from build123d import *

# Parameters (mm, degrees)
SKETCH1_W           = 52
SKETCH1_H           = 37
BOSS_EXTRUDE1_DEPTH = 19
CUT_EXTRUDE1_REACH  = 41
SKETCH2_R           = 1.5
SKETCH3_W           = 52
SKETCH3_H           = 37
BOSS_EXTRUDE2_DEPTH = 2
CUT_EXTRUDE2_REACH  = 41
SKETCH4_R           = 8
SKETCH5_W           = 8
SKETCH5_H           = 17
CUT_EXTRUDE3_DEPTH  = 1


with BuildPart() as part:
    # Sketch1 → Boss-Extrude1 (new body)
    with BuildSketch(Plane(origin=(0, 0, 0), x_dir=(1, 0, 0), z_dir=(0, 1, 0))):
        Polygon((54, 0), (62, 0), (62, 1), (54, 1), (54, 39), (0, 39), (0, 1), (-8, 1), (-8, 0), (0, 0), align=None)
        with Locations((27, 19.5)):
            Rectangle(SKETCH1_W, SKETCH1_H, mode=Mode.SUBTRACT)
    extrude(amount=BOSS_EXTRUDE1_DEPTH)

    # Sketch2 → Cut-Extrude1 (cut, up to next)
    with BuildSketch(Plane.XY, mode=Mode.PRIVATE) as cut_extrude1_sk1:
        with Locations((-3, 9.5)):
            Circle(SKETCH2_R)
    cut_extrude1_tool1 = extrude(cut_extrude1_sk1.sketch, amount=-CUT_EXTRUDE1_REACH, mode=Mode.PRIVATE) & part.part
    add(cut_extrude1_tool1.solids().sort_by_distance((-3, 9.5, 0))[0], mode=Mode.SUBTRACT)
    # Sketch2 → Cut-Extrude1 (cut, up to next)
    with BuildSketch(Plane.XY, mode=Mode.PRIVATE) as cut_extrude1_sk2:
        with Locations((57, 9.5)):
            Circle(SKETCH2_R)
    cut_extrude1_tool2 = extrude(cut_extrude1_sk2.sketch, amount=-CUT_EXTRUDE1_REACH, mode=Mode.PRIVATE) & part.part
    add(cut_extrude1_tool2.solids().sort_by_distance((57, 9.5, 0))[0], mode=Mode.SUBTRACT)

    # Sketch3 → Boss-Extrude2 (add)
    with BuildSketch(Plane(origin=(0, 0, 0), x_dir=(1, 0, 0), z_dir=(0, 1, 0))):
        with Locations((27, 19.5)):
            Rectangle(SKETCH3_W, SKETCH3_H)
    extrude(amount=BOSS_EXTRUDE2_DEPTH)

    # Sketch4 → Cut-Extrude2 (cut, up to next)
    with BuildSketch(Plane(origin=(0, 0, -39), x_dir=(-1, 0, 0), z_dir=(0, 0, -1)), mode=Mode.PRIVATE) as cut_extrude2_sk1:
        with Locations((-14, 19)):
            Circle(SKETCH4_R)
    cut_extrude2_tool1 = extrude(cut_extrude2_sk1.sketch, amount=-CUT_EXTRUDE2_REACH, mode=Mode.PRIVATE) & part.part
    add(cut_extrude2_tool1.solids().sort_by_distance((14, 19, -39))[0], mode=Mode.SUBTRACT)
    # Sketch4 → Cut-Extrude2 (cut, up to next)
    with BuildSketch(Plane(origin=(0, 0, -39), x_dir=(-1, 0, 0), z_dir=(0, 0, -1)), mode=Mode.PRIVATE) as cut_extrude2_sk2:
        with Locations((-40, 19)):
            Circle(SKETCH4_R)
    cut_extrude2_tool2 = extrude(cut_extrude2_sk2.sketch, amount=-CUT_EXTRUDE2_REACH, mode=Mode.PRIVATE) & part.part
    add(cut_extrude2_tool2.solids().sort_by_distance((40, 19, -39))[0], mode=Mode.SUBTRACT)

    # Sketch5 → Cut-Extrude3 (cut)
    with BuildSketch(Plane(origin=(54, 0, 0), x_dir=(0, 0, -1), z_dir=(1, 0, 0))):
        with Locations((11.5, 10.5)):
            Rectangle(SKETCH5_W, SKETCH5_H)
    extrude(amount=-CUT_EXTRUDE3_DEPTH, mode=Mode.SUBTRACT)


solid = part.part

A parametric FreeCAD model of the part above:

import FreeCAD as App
import Part
import Sketcher

V = App.Vector
Q = App.Units.Quantity


def add_polygon(sketch, points):
    """Adds a closed chain of lines whose ends are joined by coincident constraints."""
    first, n = sketch.GeometryCount, len(points)
    for a, b in zip(points, points[1:] + points[:1]):
        sketch.addGeometry(Part.LineSegment(App.Vector(*a, 0), App.Vector(*b, 0)), False)
    for i in range(n):
        sketch.addConstraint(Sketcher.Constraint("Coincident", first + i, 2, first + (i + 1) % n, 1))

doc = App.newDocument("Part")
params = doc.addObject("Spreadsheet::Sheet", "Params")
for row, (alias, value) in enumerate([
    ("sketch1_width", "8 mm"),
    ("sketch1_width2", "54 mm"),
    ("sketch1_width3", "52 mm"),
    ("sketch1_height", "1 mm"),
    ("sketch1_height2", "38 mm"),
    ("pad1_length", "19 mm"),
    ("sketch2_diameter", "3 mm"),
    ("sketch3_diameter", "3 mm"),
    ("sketch4_width", "52 mm"),
    ("sketch4_height", "37 mm"),
    ("pad2_length", "2 mm"),
    ("sketch5_diameter", "16 mm"),
    ("sketch6_diameter", "16 mm"),
    ("sketch7_width", "17 mm"),
    ("sketch7_height", "8 mm"),
    ("pocket5_length", "1 mm"),
], start=1):
    params.set(f"A{row}", alias)
    params.set(f"B{row}", "=" + value)
    params.setAlias(f"B{row}", alias)

body = doc.addObject("PartDesign::Body", "Body")

# Sketch on XZ plane
sketch1 = doc.addObject("Sketcher::SketchObject", "Sketch")
body.addObject(sketch1)
sketch1.AttachmentSupport = (doc.XZ_Plane, [""])
sketch1.MapMode = "FlatFace"
add_polygon(sketch1, [(62, 0), (62, -1), (54, -1), (54, -39), (0, -39), (0, -1), (-8, -1), (-8, 0)])  # lines 0-7
add_polygon(sketch1, [(53, -1), (1, -1), (1, -38), (53, -38)])  # lines 8-11
sketch1.addConstraint([
    Sketcher.Constraint("Vertical", 0),
    Sketcher.Constraint("Horizontal", 1),
    Sketcher.Constraint("Vertical", 2),
    Sketcher.Constraint("Horizontal", 3),
    Sketcher.Constraint("Vertical", 4),
    Sketcher.Constraint("Horizontal", 5),
    Sketcher.Constraint("Vertical", 6),
    Sketcher.Constraint("Horizontal", 7),
    Sketcher.Constraint("Horizontal", 8),
    Sketcher.Constraint("Vertical", 9),
    Sketcher.Constraint("Horizontal", 10),
    Sketcher.Constraint("Vertical", 11),
    Sketcher.Constraint("PointOnObject", 3, 2, -2),
    Sketcher.Constraint("PointOnObject", 6, 2, -1),
    Sketcher.Constraint("Horizontal", 1, 2, 4, 2),
    Sketcher.Constraint("Horizontal", 5, 2, 8, 2),
    Sketcher.Constraint("Equal", 1, 5),
    Sketcher.Constraint("DistanceX", 1, 2, 1, 1, Q("8 mm")),
    Sketcher.Constraint("DistanceX", 3, 2, 3, 1, Q("54 mm")),
    Sketcher.Constraint("DistanceX", 8, 2, 8, 1, Q("52 mm")),
    Sketcher.Constraint("DistanceY", 0, 2, 0, 1, Q("1 mm")),
    Sketcher.Constraint("DistanceY", 2, 2, 2, 1, Q("38 mm")),
    Sketcher.Constraint("DistanceY", 9, 2, 9, 1, Q("37 mm")),
    Sketcher.Constraint("DistanceX", -1, 1, 8, 2, Q("1 mm")),
])
sketch1.setExpression("Constraints[29]", "Params.sketch1_width")
sketch1.setExpression("Constraints[30]", "Params.sketch1_width2")
sketch1.setExpression("Constraints[31]", "Params.sketch1_width3")
sketch1.setExpression("Constraints[32]", "Params.sketch1_height")
sketch1.setExpression("Constraints[33]", "Params.sketch1_height2")
pad1 = doc.addObject("PartDesign::Pad", "Pad")
body.addObject(pad1)
pad1.Profile = sketch1
pad1.setExpression("Length", "Params.pad1_length")
pad1.Reversed = True

# Sketch on XY plane
sketch2 = doc.addObject("Sketcher::SketchObject", "Sketch001")
body.addObject(sketch2)
sketch2.AttachmentSupport = (doc.XY_Plane, [""])
sketch2.MapMode = "FlatFace"
sketch2.addGeometry(Part.Circle(V(-3, 9.5, 0), V(0, 0, 1), 1.5), False)
sketch2.addConstraint([
    Sketcher.Constraint("Diameter", 0, Q("3 mm")),
    Sketcher.Constraint("DistanceX", 0, 3, -1, 1, Q("3 mm")),
    Sketcher.Constraint("DistanceY", -1, 1, 0, 3, Q("9.5 mm")),
])
sketch2.setExpression("Constraints[0]", "Params.sketch2_diameter")
pocket1 = doc.addObject("PartDesign::Pocket", "Pocket")
body.addObject(pocket1)
pocket1.Profile = sketch2
pocket1.Type = "UpToFirst"

# Sketch on XY plane
sketch3 = doc.addObject("Sketcher::SketchObject", "Sketch002")
body.addObject(sketch3)
sketch3.AttachmentSupport = (doc.XY_Plane, [""])
sketch3.MapMode = "FlatFace"
sketch3.addGeometry(Part.Circle(V(57, 9.5, 0), V(0, 0, 1), 1.5), False)
sketch3.addConstraint([
    Sketcher.Constraint("Diameter", 0, Q("3 mm")),
    Sketcher.Constraint("DistanceX", -1, 1, 0, 3, Q("57 mm")),
    Sketcher.Constraint("DistanceY", -1, 1, 0, 3, Q("9.5 mm")),
])
sketch3.setExpression("Constraints[0]", "Params.sketch3_diameter")
pocket2 = doc.addObject("PartDesign::Pocket", "Pocket001")
body.addObject(pocket2)
pocket2.Profile = sketch3
pocket2.Type = "UpToFirst"

# Sketch on XZ plane
sketch4 = doc.addObject("Sketcher::SketchObject", "Sketch003")
body.addObject(sketch4)
sketch4.AttachmentSupport = (doc.XZ_Plane, [""])
sketch4.MapMode = "FlatFace"
add_polygon(sketch4, [(1, -38), (1, -1), (53, -1), (53, -38)])  # lines 0-3
sketch4.addConstraint([
    Sketcher.Constraint("Vertical", 0),
    Sketcher.Constraint("Horizontal", 1),
    Sketcher.Constraint("Vertical", 2),
    Sketcher.Constraint("Horizontal", 3),
    Sketcher.Constraint("DistanceX", 1, 1, 1, 2, Q("52 mm")),
    Sketcher.Constraint("DistanceY", 0, 1, 0, 2, Q("37 mm")),
    Sketcher.Constraint("DistanceX", -1, 1, 0, 2, Q("1 mm")),
    Sketcher.Constraint("DistanceY", 0, 2, -1, 1, Q("1 mm")),
])
sketch4.setExpression("Constraints[8]", "Params.sketch4_width")
sketch4.setExpression("Constraints[9]", "Params.sketch4_height")
pad2 = doc.addObject("PartDesign::Pad", "Pad001")
body.addObject(pad2)
pad2.Profile = sketch4
pad2.setExpression("Length", "Params.pad2_length")
pad2.Reversed = True

# Sketch on XY plane
sketch5 = doc.addObject("Sketcher::SketchObject", "Sketch004")
body.addObject(sketch5)
sketch5.AttachmentSupport = (doc.XY_Plane, [""])
sketch5.MapMode = "FlatFace"
sketch5.AttachmentOffset = App.Placement(V(0, 0, -39), App.Rotation())
sketch5.addGeometry(Part.Circle(V(14, 19, 0), V(0, 0, 1), 8), False)
sketch5.addConstraint([
    Sketcher.Constraint("Diameter", 0, Q("16 mm")),
    Sketcher.Constraint("DistanceX", -1, 1, 0, 3, Q("14 mm")),
    Sketcher.Constraint("DistanceY", -1, 1, 0, 3, Q("19 mm")),
])
sketch5.setExpression("Constraints[0]", "Params.sketch5_diameter")
pocket3 = doc.addObject("PartDesign::Pocket", "Pocket002")
body.addObject(pocket3)
pocket3.Profile = sketch5
pocket3.Type = "UpToFirst"
pocket3.Reversed = True

# Sketch on XY plane
sketch6 = doc.addObject("Sketcher::SketchObject", "Sketch005")
body.addObject(sketch6)
sketch6.AttachmentSupport = (doc.XY_Plane, [""])
sketch6.MapMode = "FlatFace"
sketch6.AttachmentOffset = App.Placement(V(0, 0, -39), App.Rotation())
sketch6.addGeometry(Part.Circle(V(40, 19, 0), V(0, 0, 1), 8), False)
sketch6.addConstraint([
    Sketcher.Constraint("Diameter", 0, Q("16 mm")),
    Sketcher.Constraint("DistanceX", -1, 1, 0, 3, Q("40 mm")),
    Sketcher.Constraint("DistanceY", -1, 1, 0, 3, Q("19 mm")),
])
sketch6.setExpression("Constraints[0]", "Params.sketch6_diameter")
pocket4 = doc.addObject("PartDesign::Pocket", "Pocket003")
body.addObject(pocket4)
pocket4.Profile = sketch6
pocket4.Type = "UpToFirst"
pocket4.Reversed = True

# Sketch on YZ plane
sketch7 = doc.addObject("Sketcher::SketchObject", "Sketch006")
body.addObject(sketch7)
sketch7.AttachmentSupport = (doc.YZ_Plane, [""])
sketch7.MapMode = "FlatFace"
sketch7.AttachmentOffset = App.Placement(V(0, 0, 54), App.Rotation())
add_polygon(sketch7, [(19, -8), (2, -8), (2, -16), (19, -16)])  # lines 0-3
sketch7.addConstraint([
    Sketcher.Constraint("Horizontal", 0),
    Sketcher.Constraint("Vertical", 1),
    Sketcher.Constraint("Horizontal", 2),
    Sketcher.Constraint("Vertical", 3),
    Sketcher.Constraint("DistanceX", 0, 2, 0, 1, Q("17 mm")),
    Sketcher.Constraint("DistanceY", 1, 2, 1, 1, Q("8 mm")),
    Sketcher.Constraint("DistanceX", -1, 1, 0, 2, Q("2 mm")),
    Sketcher.Constraint("DistanceY", 0, 2, -1, 1, Q("7.5 mm")),
])
sketch7.setExpression("Constraints[8]", "Params.sketch7_width")
sketch7.setExpression("Constraints[9]", "Params.sketch7_height")
pocket5 = doc.addObject("PartDesign::Pocket", "Pocket004")
body.addObject(pocket5)
pocket5.Profile = sketch7
pocket5.setExpression("Length", "Params.pocket5_length")

doc.recompute()
